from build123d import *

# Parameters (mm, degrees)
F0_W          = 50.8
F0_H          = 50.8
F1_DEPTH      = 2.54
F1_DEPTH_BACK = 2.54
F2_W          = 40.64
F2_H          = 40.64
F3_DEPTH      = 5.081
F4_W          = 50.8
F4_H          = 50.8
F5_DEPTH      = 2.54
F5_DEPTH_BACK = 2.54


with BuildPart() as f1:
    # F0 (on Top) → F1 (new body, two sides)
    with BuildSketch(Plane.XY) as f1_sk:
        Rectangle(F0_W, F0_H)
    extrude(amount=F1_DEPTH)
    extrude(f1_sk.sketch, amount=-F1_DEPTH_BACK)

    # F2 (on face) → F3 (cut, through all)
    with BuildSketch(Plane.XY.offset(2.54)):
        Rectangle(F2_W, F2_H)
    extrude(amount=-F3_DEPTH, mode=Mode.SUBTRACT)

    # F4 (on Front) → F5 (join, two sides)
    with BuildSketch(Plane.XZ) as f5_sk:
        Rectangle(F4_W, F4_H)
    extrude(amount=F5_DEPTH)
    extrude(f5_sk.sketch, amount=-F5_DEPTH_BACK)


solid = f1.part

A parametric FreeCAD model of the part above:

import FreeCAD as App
import Part
import Sketcher
from FreeCAD import Vector
Q = App.Units.Quantity


def add_polygon(sketch, points):
    """Adds a closed chain of lines whose ends are joined by coincident constraints."""
    first, n = sketch.GeometryCount, len(points)
    for a, b in zip(points, points[1:] + points[:1]):
        sketch.addGeometry(Part.LineSegment(App.Vector(*a, 0), App.Vector(*b, 0)), False)
    for i in range(n):
        sketch.addConstraint(Sketcher.Constraint("Coincident", first + i, 2, first + (i + 1) % n, 1))

doc = App.newDocument("Part")
body = doc.addObject("PartDesign::Body", "Body")

# Sketch on XY plane
sketch1 = body.newObject("Sketcher::SketchObject", "Sketch")
sketch1.AttachmentSupport = (doc.getObject("XY_Plane"), [""])
sketch1.MapMode = "FlatFace"
add_polygon(sketch1, [(-25, 25), (-25, -25), (25, -25), (25, 25)])  # lines 0-3
sketch1.addConstraint([
    Sketcher.Constraint("Vertical", 0),
    Sketcher.Constraint("Horizontal", 1),
    Sketcher.Constraint("Vertical", 2),
    Sketcher.Constraint("Horizontal", 3),
    Sketcher.Constraint("Symmetric", 0, 2, 2, 2, -1, 1),
    Sketcher.Constraint("Equal", 3, 0),
    Sketcher.Constraint("DistanceX", 1, 1, 1, 2, Q("2 in")),
])
pad1 = body.newObject("PartDesign::Pad", "Pad")
pad1.Profile = sketch1
pad1.Type = "TwoLengths"
pad1.Length = Q("0.1 in")
pad1.Length2 = Q("0.1 in")

# Sketch on XY plane
sketch2 = body.newObject("Sketcher::SketchObject", "Sketch001")
sketch2.AttachmentSupport = (doc.getObject("XY_Plane"), [""])
sketch2.MapMode = "FlatFace"
sketch2.AttachmentOffset = App.Placement(Vector(0, 0, 0.1 * 25.4), App.Rotation())
add_polygon(sketch2, [(-20, 20), (-20, -20), (20, -20), (20, 20)])  # lines 0-3
sketch2.addConstraint([
    Sketcher.Constraint("Vertical", 0),
    Sketcher.Constraint("Horizontal", 1),
    Sketcher.Constraint("Vertical", 2),
    Sketcher.Constraint("Horizontal", 3),
    Sketcher.Constraint("Symmetric", 0, 2, 2, 2, -1, 1),
    Sketcher.Constraint("Equal", 3, 0),
    Sketcher.Constraint("DistanceX", 1, 1, 1, 2, Q("1.6 in")),
])
pocket1 = body.newObject("PartDesign::Pocket", "Pocket")
pocket1.Profile = sketch2
pocket1.Type = "ThroughAll"

# Sketch on XZ plane
sketch3 = body.newObject("Sketcher::SketchObject", "Sketch002")
sketch3.AttachmentSupport = (doc.getObject("XZ_Plane"), [""])
sketch3.MapMode = "FlatFace"
add_polygon(sketch3, [(-25, 25), (-25, -25), (25, -25), (25, 25)])  # lines 0-3
sketch3.addConstraint([
    Sketcher.Constraint("Vertical", 0),
    Sketcher.Constraint("Horizontal", 1),
    Sketcher.Constraint("Vertical", 2),
    Sketcher.Constraint("Horizontal", 3),
    Sketcher.Constraint("Symmetric", 0, 2, 2, 2, -1, 1),
    Sketcher.Constraint("Equal", 3, 0),
    Sketcher.Constraint("DistanceX", 1, 1, 1, 2, Q("2 in")),
])
pad2 = body.newObject("PartDesign::Pad", "Pad001")
pad2.Profile = sketch3
pad2.Type = "TwoLengths"
pad2.Length = Q("0.1 in")
pad2.Length2 = Q("0.1 in")

doc.recompute()
